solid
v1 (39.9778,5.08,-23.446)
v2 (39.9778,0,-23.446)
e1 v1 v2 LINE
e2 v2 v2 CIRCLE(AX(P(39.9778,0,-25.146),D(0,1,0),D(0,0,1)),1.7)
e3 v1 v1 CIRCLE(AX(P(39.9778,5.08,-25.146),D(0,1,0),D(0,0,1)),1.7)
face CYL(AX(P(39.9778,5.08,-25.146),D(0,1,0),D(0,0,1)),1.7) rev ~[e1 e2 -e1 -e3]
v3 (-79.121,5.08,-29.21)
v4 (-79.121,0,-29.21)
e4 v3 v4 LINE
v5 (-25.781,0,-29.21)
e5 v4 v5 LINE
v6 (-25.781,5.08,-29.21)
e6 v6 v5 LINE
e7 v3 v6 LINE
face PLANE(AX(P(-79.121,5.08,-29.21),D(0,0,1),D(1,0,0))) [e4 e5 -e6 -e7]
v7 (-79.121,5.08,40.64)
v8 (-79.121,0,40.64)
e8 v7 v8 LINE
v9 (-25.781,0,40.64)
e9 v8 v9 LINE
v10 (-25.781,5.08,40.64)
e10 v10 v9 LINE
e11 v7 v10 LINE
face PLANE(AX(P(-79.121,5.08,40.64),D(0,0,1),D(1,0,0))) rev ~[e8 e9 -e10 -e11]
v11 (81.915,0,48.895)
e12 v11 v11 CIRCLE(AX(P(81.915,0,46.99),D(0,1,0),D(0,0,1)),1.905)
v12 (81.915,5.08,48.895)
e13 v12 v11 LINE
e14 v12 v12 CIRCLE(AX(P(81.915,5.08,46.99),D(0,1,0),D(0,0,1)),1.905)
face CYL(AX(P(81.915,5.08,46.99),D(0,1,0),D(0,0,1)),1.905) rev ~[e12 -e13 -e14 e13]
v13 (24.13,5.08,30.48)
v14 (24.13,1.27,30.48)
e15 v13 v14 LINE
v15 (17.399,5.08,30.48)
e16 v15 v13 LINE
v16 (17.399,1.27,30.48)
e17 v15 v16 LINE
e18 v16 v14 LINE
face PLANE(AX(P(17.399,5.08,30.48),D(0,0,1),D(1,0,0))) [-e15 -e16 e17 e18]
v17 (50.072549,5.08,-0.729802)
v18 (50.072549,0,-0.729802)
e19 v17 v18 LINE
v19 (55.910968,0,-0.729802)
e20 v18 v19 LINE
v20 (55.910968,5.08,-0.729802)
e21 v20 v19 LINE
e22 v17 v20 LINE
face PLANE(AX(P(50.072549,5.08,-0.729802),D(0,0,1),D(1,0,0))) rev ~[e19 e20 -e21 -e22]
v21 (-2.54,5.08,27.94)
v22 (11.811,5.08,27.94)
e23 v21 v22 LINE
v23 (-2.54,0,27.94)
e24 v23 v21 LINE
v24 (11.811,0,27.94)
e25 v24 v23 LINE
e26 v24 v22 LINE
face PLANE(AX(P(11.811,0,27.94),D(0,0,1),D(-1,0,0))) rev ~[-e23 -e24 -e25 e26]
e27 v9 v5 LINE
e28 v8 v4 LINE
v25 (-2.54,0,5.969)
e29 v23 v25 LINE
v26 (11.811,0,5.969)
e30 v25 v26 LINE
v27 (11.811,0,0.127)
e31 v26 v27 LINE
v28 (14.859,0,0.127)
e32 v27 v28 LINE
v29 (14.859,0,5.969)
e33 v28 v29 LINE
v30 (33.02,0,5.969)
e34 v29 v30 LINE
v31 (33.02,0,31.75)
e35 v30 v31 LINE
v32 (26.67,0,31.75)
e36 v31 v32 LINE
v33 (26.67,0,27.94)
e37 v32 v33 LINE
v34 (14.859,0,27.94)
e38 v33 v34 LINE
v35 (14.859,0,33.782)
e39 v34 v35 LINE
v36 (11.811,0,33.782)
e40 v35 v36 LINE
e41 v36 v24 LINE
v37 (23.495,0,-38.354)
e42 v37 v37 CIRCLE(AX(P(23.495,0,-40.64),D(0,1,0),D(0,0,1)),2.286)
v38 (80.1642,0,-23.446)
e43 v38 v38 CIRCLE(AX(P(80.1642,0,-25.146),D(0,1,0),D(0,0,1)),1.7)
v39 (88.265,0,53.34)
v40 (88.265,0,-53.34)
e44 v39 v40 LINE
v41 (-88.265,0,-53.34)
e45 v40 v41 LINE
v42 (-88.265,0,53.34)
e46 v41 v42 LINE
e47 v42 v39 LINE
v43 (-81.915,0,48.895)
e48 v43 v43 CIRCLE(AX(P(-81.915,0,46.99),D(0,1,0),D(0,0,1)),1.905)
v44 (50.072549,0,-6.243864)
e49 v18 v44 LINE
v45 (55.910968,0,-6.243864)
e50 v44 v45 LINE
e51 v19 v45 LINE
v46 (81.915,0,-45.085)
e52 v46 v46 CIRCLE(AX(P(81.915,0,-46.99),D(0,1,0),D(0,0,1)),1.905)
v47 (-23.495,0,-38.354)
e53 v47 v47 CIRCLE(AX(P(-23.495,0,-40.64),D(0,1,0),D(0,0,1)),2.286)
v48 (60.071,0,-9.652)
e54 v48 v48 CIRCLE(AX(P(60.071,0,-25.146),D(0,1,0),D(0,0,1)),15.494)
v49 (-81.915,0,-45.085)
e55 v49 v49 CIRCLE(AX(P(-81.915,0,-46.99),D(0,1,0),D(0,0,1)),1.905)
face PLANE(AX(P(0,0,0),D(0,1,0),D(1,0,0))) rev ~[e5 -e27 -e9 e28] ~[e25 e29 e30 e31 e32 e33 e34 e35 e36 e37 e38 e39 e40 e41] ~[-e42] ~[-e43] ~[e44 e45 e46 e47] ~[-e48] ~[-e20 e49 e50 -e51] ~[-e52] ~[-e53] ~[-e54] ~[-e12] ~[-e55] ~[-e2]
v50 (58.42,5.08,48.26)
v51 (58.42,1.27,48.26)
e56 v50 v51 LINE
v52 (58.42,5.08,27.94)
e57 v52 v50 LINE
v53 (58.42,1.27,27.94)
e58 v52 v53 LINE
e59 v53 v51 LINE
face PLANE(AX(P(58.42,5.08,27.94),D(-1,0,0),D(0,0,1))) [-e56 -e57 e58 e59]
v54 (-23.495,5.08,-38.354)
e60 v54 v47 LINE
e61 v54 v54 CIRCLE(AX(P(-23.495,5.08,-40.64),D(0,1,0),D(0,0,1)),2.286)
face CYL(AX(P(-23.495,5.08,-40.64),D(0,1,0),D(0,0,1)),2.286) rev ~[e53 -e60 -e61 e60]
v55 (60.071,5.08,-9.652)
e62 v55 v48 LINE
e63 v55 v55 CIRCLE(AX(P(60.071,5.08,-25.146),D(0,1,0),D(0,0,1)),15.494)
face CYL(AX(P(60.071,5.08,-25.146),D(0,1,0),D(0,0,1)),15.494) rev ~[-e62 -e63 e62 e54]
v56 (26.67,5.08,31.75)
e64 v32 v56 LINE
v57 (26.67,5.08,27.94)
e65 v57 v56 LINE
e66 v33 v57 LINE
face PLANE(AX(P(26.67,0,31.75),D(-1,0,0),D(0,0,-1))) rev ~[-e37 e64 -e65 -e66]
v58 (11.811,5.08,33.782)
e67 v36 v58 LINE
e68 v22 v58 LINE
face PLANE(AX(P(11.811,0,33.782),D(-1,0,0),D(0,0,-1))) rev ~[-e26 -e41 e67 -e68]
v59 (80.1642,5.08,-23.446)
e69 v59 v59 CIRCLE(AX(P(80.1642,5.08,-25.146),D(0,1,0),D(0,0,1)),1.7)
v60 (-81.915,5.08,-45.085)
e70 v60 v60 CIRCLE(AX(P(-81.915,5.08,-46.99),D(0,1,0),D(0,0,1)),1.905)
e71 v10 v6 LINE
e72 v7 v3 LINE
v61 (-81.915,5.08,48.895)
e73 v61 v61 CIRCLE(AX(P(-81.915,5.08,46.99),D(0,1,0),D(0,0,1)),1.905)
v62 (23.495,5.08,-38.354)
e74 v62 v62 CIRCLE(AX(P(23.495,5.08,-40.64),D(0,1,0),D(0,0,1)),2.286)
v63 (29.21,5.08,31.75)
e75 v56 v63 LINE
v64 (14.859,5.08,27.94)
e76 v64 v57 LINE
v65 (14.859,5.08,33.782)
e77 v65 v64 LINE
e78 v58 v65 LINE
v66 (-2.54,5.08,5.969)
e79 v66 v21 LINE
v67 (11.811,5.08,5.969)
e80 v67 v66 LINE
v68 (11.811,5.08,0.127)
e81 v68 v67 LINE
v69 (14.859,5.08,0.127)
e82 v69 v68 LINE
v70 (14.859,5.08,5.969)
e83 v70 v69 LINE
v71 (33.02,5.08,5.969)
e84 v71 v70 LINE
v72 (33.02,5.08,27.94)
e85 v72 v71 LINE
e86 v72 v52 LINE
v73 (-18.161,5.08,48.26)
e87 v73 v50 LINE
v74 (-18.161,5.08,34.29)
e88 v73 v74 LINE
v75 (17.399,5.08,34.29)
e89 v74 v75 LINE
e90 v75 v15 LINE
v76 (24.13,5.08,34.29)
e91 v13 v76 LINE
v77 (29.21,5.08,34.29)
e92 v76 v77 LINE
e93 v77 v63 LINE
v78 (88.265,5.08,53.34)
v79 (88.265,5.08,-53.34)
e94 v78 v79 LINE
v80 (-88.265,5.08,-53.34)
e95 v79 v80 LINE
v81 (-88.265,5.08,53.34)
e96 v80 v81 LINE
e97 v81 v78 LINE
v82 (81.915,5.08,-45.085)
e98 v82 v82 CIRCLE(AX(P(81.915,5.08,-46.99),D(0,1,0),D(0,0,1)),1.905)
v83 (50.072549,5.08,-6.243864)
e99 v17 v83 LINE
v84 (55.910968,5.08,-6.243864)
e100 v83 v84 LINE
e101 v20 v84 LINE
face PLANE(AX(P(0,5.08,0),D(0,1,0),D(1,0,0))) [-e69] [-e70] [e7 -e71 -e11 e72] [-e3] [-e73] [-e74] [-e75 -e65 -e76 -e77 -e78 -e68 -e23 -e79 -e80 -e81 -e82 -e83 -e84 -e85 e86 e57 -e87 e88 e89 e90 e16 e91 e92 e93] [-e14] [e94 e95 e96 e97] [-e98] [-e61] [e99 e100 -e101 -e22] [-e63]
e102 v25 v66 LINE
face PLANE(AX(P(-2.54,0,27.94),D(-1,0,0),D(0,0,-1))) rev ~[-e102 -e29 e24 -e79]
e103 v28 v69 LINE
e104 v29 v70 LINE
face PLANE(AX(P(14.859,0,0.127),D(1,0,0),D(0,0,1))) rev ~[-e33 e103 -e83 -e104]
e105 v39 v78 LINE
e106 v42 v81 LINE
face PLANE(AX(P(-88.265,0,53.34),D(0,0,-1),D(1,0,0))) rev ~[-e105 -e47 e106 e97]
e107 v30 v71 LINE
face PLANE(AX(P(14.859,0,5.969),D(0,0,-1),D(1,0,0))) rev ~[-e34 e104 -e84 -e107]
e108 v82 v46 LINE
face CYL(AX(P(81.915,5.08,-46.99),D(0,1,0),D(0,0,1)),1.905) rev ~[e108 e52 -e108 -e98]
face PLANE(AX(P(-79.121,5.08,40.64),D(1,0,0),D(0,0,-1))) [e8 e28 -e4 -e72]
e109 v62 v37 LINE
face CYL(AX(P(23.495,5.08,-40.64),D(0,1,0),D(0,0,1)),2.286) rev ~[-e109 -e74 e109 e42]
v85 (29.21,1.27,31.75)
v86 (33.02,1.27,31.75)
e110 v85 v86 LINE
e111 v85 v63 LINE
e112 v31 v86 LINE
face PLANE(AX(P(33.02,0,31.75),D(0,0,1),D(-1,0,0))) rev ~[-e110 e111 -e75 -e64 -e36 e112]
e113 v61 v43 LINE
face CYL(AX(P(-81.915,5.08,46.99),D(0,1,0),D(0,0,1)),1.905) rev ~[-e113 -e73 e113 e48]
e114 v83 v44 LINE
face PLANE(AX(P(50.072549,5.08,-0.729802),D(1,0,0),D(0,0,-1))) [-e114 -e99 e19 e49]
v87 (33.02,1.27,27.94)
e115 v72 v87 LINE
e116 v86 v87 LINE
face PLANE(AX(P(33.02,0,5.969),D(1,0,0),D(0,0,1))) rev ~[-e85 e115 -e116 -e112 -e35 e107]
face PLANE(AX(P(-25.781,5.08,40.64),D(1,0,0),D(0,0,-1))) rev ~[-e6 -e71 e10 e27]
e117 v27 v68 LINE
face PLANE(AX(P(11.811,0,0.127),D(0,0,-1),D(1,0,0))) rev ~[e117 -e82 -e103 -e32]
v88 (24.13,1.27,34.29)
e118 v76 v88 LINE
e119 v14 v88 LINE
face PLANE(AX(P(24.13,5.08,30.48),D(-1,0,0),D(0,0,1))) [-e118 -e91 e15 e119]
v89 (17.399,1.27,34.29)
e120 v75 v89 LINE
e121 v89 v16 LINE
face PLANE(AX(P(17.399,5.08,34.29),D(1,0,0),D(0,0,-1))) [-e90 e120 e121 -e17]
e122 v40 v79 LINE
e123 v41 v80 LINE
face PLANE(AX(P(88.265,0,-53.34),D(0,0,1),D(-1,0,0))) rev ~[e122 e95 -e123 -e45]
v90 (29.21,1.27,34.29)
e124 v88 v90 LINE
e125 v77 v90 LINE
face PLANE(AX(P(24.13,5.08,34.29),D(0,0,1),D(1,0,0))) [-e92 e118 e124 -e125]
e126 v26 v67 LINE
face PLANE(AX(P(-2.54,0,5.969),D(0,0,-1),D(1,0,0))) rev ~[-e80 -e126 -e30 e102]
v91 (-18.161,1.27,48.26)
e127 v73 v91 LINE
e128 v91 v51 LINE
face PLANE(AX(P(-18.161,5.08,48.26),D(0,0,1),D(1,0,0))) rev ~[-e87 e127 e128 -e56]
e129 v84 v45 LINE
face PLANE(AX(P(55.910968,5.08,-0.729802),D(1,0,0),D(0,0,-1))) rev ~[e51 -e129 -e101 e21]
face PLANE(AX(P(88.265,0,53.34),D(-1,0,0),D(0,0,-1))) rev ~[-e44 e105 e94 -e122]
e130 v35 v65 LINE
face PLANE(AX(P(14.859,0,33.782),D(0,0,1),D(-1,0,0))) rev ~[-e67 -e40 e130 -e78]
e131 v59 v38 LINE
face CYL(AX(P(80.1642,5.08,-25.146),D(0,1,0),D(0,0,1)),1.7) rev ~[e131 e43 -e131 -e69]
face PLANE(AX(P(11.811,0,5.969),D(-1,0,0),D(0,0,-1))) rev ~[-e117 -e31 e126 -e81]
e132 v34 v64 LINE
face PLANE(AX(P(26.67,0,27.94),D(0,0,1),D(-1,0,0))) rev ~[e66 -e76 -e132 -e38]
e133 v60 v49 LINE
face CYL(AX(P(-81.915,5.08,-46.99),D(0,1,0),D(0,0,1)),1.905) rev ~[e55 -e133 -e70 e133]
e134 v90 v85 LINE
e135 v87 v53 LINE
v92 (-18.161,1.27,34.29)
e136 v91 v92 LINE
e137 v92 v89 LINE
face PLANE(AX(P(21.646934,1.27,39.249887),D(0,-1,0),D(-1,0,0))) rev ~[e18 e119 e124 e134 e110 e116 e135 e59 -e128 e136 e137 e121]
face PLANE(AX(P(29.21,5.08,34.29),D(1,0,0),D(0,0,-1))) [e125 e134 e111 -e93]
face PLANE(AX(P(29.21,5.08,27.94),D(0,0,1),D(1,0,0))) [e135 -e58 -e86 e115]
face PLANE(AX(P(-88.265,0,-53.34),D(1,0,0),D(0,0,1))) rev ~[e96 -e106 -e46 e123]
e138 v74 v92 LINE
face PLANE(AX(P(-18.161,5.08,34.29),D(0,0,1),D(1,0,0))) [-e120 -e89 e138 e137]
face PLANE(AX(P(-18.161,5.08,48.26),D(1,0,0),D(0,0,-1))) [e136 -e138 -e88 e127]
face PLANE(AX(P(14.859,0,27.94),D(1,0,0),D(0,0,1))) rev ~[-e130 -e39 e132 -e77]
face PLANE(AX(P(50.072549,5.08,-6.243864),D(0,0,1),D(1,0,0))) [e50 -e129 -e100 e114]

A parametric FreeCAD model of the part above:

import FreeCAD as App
import Part
import Sketcher

V = App.Vector
Q = App.Units.Quantity


def add_polygon(sketch, points):
    """Adds a closed chain of lines whose ends are joined by coincident constraints."""
    first, n = sketch.GeometryCount, len(points)
    for a, b in zip(points, points[1:] + points[:1]):
        sketch.addGeometry(Part.LineSegment(App.Vector(*a, 0), App.Vector(*b, 0)), False)
    for i in range(n):
        sketch.addConstraint(Sketcher.Constraint("Coincident", first + i, 2, first + (i + 1) % n, 1))

doc = App.newDocument("Part")
params = doc.addObject("Spreadsheet::Sheet", "Params")
for row, (alias, value) in enumerate([
    ("sketch1_height", "4.2 in"),
    ("sketch1_width", "6.95 in"),
    ("pad1_length", "0.2 in"),
    ("sketch2_diameter", "0.15 in"),
    ("sketch3_diameter", "0.15 in"),
    ("sketch3_diameter2", "0.18 in"),
    ("sketch4_width", "0.12 in"),
    ("sketch4_width2", "0.25 in"),
    ("sketch4_height", "0.23 in"),
    ("sketch4_height2", "0.15 in"),
    ("sketch4_width3", "0.565 in"),
    ("sketch5_diameter", "1.22 in"),
    ("sketch6_width", "2.1 in"),
    ("sketch6_height", "2.75 in"),
    ("sketch8_width", "0.2 in"),
    ("sketch8_width2", "1.4 in"),
    ("sketch8_height", "0.8 in"),
    ("sketch8_width3", "1.15 in"),
    ("sketch8_height2", "0.25 in"),
    ("pocket7_length", "0.15 in"),
], start=1):
    params.set(f"A{row}", alias)
    params.set(f"B{row}", "=" + value)
    params.setAlias(f"B{row}", alias)

body = doc.addObject("PartDesign::Body", "Body")

sketch1 = body.newObject("Sketcher::SketchObject", "Sketch")
sketch1.AttachmentSupport = (doc.getObject("XZ_Plane"), [""])
sketch1.MapMode = "FlatFace"
add_polygon(sketch1, [(88.265, 53.34), (88.265, -53.34), (-88.265, -53.34), (-88.265, 53.34)])
sketch1.addConstraint(Sketcher.Constraint("Vertical", 0))
sketch1.addConstraint(Sketcher.Constraint("Horizontal", 1))
sketch1.addConstraint(Sketcher.Constraint("Vertical", 2))
sketch1.addConstraint(Sketcher.Constraint("Horizontal", 3))
sketch1.addConstraint(Sketcher.Constraint("Symmetric", 0, 2, 2, 2, -1, 1))
sketch1.addConstraint(Sketcher.Constraint("DistanceY", 0, 2, 0, 1, Q("4.2 in")))
sketch1.addConstraint(Sketcher.Constraint("DistanceX", 1, 2, 1, 1, Q("6.95 in")))
sketch1.setExpression("Constraints[9]", "Params.sketch1_height")
sketch1.setExpression("Constraints[10]", "Params.sketch1_width")
pad1 = body.newObject("PartDesign::Pad", "Pad")
pad1.Profile = sketch1
pad1.setExpression("Length", "Params.pad1_length")
pad1.Reversed = True

sketch2 = body.newObject("Sketcher::SketchObject", "Sketch001")
sketch2.AttachmentSupport = (doc.getObject("XZ_Plane"), [""])
sketch2.MapMode = "FlatFace"
sketch2.AttachmentOffset = App.Placement(V(0, 0, -0.2 * 25.4), App.Rotation())
sketch2.addGeometry(Part.Circle(V(-81.915, -46.99, 0), V(0, 0, 1), 1.905), False)
sketch2.addConstraint(Sketcher.Constraint("Diameter", 0, Q("0.15 in")))
sketch2.addConstraint(Sketcher.Constraint("DistanceY", 0, 3, -1, 1, Q("1.85 in")))
sketch2.addConstraint(Sketcher.Constraint("DistanceX", 0, 3, -1, 1, Q("3.225 in")))
sketch2.setExpression("Constraints[0]", "Params.sketch2_diameter")
pocket1 = body.newObject("PartDesign::Pocket", "Pocket")
pocket1.Profile = sketch2
pocket1.Type = "ThroughAll"
pocket1.Reversed = True

sketch3 = body.newObject("Sketcher::SketchObject", "Sketch002")
sketch3.AttachmentSupport = (doc.getObject("XZ_Plane"), [""])
sketch3.MapMode = "FlatFace"
sketch3.AttachmentOffset = App.Placement(V(0, 0, -0.2 * 25.4), App.Rotation())
sketch3.addGeometry(Part.Circle(V(81.915, -46.99, 0), V(0, 0, 1), 1.905), False)
sketch3.addGeometry(Part.Circle(V(-81.915, 46.99, 0), V(0, 0, 1), 1.905), False)
sketch3.addGeometry(Part.Circle(V(81.915, 46.99, 0), V(0, 0, 1), 1.905), False)
sketch3.addGeometry(Part.Circle(V(23.495, -40.64, 0), V(0, 0, 1), 2.286), False)
sketch3.addGeometry(Part.Circle(V(-23.495, -40.64, 0), V(0, 0, 1), 2.286), False)
sketch3.addConstraint(Sketcher.Constraint("Equal", 0, 1))
sketch3.addConstraint(Sketcher.Constraint("Equal", 1, 2))
sketch3.addConstraint(Sketcher.Constraint("Equal", 3, 4))
sketch3.addConstraint(Sketcher.Constraint("Symmetric", 0, 3, 1, 3, -1, 1))
sketch3.addConstraint(Sketcher.Constraint("Symmetric", 1, 3, 2, 3, -2))
sketch3.addConstraint(Sketcher.Constraint("Symmetric", 3, 3, 4, 3, -2))
sketch3.addConstraint(Sketcher.Constraint("Diameter", 0, Q("0.15 in")))
sketch3.addConstraint(Sketcher.Constraint("Diameter", 3, Q("0.18 in")))
sketch3.addConstraint(Sketcher.Constraint("DistanceY", 3, 3, -1, 1, Q("1.6 in")))
sketch3.addConstraint(Sketcher.Constraint("DistanceY", 0, 3, 1, 3, Q("3.7 in")))
sketch3.addConstraint(Sketcher.Constraint("DistanceX", 3, 3, 0, 3, Q("2.3 in")))
sketch3.addConstraint(Sketcher.Constraint("DistanceX", 1, 3, 0, 3, Q("6.45 in")))
sketch3.setExpression("Constraints[6]", "Params.sketch3_diameter")
sketch3.setExpression("Constraints[7]", "Params.sketch3_diameter2")
pocket2 = body.newObject("PartDesign::Pocket", "Pocket001")
pocket2.Profile = sketch3
pocket2.Type = "ThroughAll"
pocket2.Reversed = True

sketch4 = body.newObject("Sketcher::SketchObject", "Sketch003")
sketch4.AttachmentSupport = (doc.getObject("XZ_Plane"), [""])
sketch4.MapMode = "FlatFace"
add_polygon(sketch4, [(-2.54, 27.94), (-2.54, 5.969), (11.811, 5.969), (11.811, 0.127), (14.859, 0.127), (14.859, 5.969), (33.02, 5.969), (33.02, 31.75), (26.67, 31.75), (26.67, 27.94), (14.859, 27.94), (14.859, 33.782), (11.811, 33.782), (11.811, 27.94)])
sketch4.addConstraint(Sketcher.Constraint("Vertical", 0))
sketch4.addConstraint(Sketcher.Constraint("Horizontal", 1))
sketch4.addConstraint(Sketcher.Constraint("Vertical", 2))
sketch4.addConstraint(Sketcher.Constraint("Horizontal", 3))
sketch4.addConstraint(Sketcher.Constraint("Vertical", 4))
sketch4.addConstraint(Sketcher.Constraint("Horizontal", 5))
sketch4.addConstraint(Sketcher.Constraint("Vertical", 6))
sketch4.addConstraint(Sketcher.Constraint("Horizontal", 7))
sketch4.addConstraint(Sketcher.Constraint("Vertical", 8))
sketch4.addConstraint(Sketcher.Constraint("Horizontal", 9))
sketch4.addConstraint(Sketcher.Constraint("Vertical", 10))
sketch4.addConstraint(Sketcher.Constraint("Horizontal", 11))
sketch4.addConstraint(Sketcher.Constraint("Vertical", 12))
sketch4.addConstraint(Sketcher.Constraint("Horizontal", 13))
sketch4.addConstraint(Sketcher.Constraint("Horizontal", 1, 2, 4, 2))
sketch4.addConstraint(Sketcher.Constraint("Horizontal", 9, 2, 12, 2))
sketch4.addConstraint(Sketcher.Constraint("Vertical", 4, 2, 9, 2))
sketch4.addConstraint(Sketcher.Constraint("Vertical", 2, 2, 11, 2))
sketch4.addConstraint(Sketcher.Constraint("Equal", 4, 10))
sketch4.addConstraint(Sketcher.Constraint("DistanceX", 3, 1, 3, 2, Q("0.12 in")))
sketch4.addConstraint(Sketcher.Constraint("DistanceX", 7, 2, 7, 1, Q("0.25 in")))
sketch4.addConstraint(Sketcher.Constraint("DistanceY", 2, 2, 2, 1, Q("0.23 in")))
sketch4.addConstraint(Sketcher.Constraint("DistanceY", 8, 2, 8, 1, Q("0.15 in")))
sketch4.addConstraint(Sketcher.Constraint("DistanceX", 0, 2, -1, 1, Q("0.1 in")))
sketch4.addConstraint(Sketcher.Constraint("DistanceX", -1, 1, 5, 2, Q("1.3 in")))
sketch4.addConstraint(Sketcher.Constraint("DistanceY", -1, 1, 8, 2, Q("1.1 in")))
sketch4.addConstraint(Sketcher.Constraint("DistanceX", 1, 1, 1, 2, Q("0.565 in")))
sketch4.addConstraint(Sketcher.Constraint("DistanceY", 0, 2, 0, 1, Q("0.865 in")))
sketch4.setExpression("Constraints[33]", "Params.sketch4_width")
sketch4.setExpression("Constraints[34]", "Params.sketch4_width2")
sketch4.setExpression("Constraints[35]", "Params.sketch4_height")
sketch4.setExpression("Constraints[36]", "Params.sketch4_height2")
sketch4.setExpression("Constraints[40]", "Params.sketch4_width3")
pocket3 = body.newObject("PartDesign::Pocket", "Pocket002")
pocket3.Profile = sketch4
pocket3.Type = "ThroughAll"

sketch5 = body.newObject("Sketcher::SketchObject", "Sketch004")
sketch5.AttachmentSupport = (doc.getObject("XZ_Plane"), [""])
sketch5.MapMode = "FlatFace"
sketch5.AttachmentOffset = App.Placement(V(0, 0, -0.2 * 25.4), App.Rotation())
sketch5.addGeometry(Part.Circle(V(60.071, -25.146, 0), V(0, 0, 1), 15.494), False)
sketch5.addGeometry(Part.Circle(V(39.9778, -25.146, 0), V(0, 0, 1), 1.7), False)
sketch5.addGeometry(Part.Circle(V(80.1642, -25.146, 0), V(0, 0, 1), 1.7), False)
sketch5.addConstraint(Sketcher.Constraint("Equal", 1, 2))
sketch5.addConstraint(Sketcher.Constraint("Horizontal", 0, 3, 1, 3))
sketch5.addConstraint(Sketcher.Constraint("Horizontal", 1, 3, 2, 3))
sketch5.addConstraint(Sketcher.Constraint("Diameter", 0, Q("1.22 in")))
sketch5.addConstraint(Sketcher.Constraint("Diameter", 1, 3.4))
sketch5.addConstraint(Sketcher.Constraint("DistanceY", 0, 3, -1, 1, Q("0.99 in")))
sketch5.addConstraint(Sketcher.Constraint("DistanceX", -1, 1, 0, 3, Q("2.365 in")))
sketch5.addConstraint(Sketcher.Constraint("DistanceX", -1, 1, 1, 3, 39.9778))
sketch5.addConstraint(Sketcher.Constraint("DistanceX", -1, 1, 2, 3, 80.1642))
sketch5.setExpression("Constraints[3]", "Params.sketch5_diameter")
pocket4 = body.newObject("PartDesign::Pocket", "Pocket003")
pocket4.Profile = sketch5
pocket4.Type = "ThroughAll"
pocket4.Reversed = True

sketch6 = body.newObject("Sketcher::SketchObject", "Sketch005")
sketch6.AttachmentSupport = (doc.getObject("XZ_Plane"), [""])
sketch6.MapMode = "FlatFace"
sketch6.AttachmentOffset = App.Placement(V(0, 0, -0.2 * 25.4), App.Rotation())
add_polygon(sketch6, [(-79.121, -29.21), (-79.121, 40.64), (-25.781, 40.64), (-25.781, -29.21)])
sketch6.addConstraint(Sketcher.Constraint("Vertical", 0))
sketch6.addConstraint(Sketcher.Constraint("Horizontal", 1))
sketch6.addConstraint(Sketcher.Constraint("Vertical", 2))
sketch6.addConstraint(Sketcher.Constraint("Horizontal", 3))
sketch6.addConstraint(Sketcher.Constraint("DistanceX", 1, 1, 1, 2, Q("2.1 in")))
sketch6.addConstraint(Sketcher.Constraint("DistanceY", 0, 1, 0, 2, Q("2.75 in")))
sketch6.addConstraint(Sketcher.Constraint("DistanceY", -1, 1, 0, 2, Q("1.6 in")))
sketch6.addConstraint(Sketcher.Constraint("DistanceX", 0, 2, -1, 1, Q("3.115 in")))
sketch6.setExpression("Constraints[8]", "Params.sketch6_width")
sketch6.setExpression("Constraints[9]", "Params.sketch6_height")
pocket5 = body.newObject("PartDesign::Pocket", "Pocket004")
pocket5.Profile = sketch6
pocket5.Type = "ThroughAll"
pocket5.Reversed = True

sketch7 = body.newObject("Sketcher::SketchObject", "Sketch006")
sketch7.AttachmentSupport = (doc.getObject("XZ_Plane"), [""])
sketch7.MapMode = "FlatFace"
sketch7.AttachmentOffset = App.Placement(V(0, 0, -0.2 * 25.4), App.Rotation())
add_polygon(sketch7, [(50.072549, -6.243864), (50.072549, -0.729802), (55.910968, -0.729802), (55.910968, -6.243864)])
sketch7.addConstraint(Sketcher.Constraint("Vertical", 0))
sketch7.addConstraint(Sketcher.Constraint("Horizontal", 1))
sketch7.addConstraint(Sketcher.Constraint("Vertical", 2))
sketch7.addConstraint(Sketcher.Constraint("Horizontal", 3))
sketch7.addConstraint(Sketcher.Constraint("DistanceX", 1, 1, 1, 2, 5.838419))
sketch7.addConstraint(Sketcher.Constraint("DistanceY", 0, 1, 0, 2, 5.514062))
sketch7.addConstraint(Sketcher.Constraint("DistanceX", -1, 1, 0, 2, 50.072549))
sketch7.addConstraint(Sketcher.Constraint("DistanceY", 0, 2, -1, 1, 0.729802))
pocket6 = body.newObject("PartDesign::Pocket", "Pocket005")
pocket6.Profile = sketch7
pocket6.Type = "ThroughAll"
pocket6.Reversed = True

sketch8 = body.newObject("Sketcher::SketchObject", "Sketch007")
sketch8.AttachmentSupport = (doc.getObject("XZ_Plane"), [""])
sketch8.MapMode = "FlatFace"
sketch8.AttachmentOffset = App.Placement(V(0, 0, -0.2 * 25.4), App.Rotation())
add_polygon(sketch8, [(58.42, 27.94), (29.21, 27.94), (29.21, 34.29), (24.13, 34.29), (24.13, 30.48), (17.399, 30.48), (17.399, 34.29), (-18.161, 34.29), (-18.161, 48.26), (58.42, 48.26)])
sketch8.addConstraint(Sketcher.Constraint("Horizontal", 0))
sketch8.addConstraint(Sketcher.Constraint("Vertical", 1))
sketch8.addConstraint(Sketcher.Constraint("Horizontal", 2))
sketch8.addConstraint(Sketcher.Constraint("Vertical", 3))
sketch8.addConstraint(Sketcher.Constraint("Horizontal", 4))
sketch8.addConstraint(Sketcher.Constraint("Vertical", 5))
sketch8.addConstraint(Sketcher.Constraint("Horizontal", 6))
sketch8.addConstraint(Sketcher.Constraint("Vertical", 7))
sketch8.addConstraint(Sketcher.Constraint("Horizontal", 8))
sketch8.addConstraint(Sketcher.Constraint("Vertical", 9))
sketch8.addConstraint(Sketcher.Constraint("Horizontal", 2, 2, 5, 2))
sketch8.addConstraint(Sketcher.Constraint("DistanceX", 2, 2, 2, 1, Q("0.2 in")))
sketch8.addConstraint(Sketcher.Constraint("DistanceX", 6, 2, 6, 1, Q("1.4 in")))
sketch8.addConstraint(Sketcher.Constraint("DistanceY", 9, 2, 9, 1, Q("0.8 in")))
sketch8.addConstraint(Sketcher.Constraint("DistanceX", 0, 2, 0, 1, Q("1.15 in")))
sketch8.addConstraint(Sketcher.Constraint("DistanceY", 1, 1, 1, 2, Q("0.25 in")))
sketch8.addConstraint(Sketcher.Constraint("DistanceY", 3, 2, 3, 1, Q("0.15 in")))
sketch8.addConstraint(Sketcher.Constraint("DistanceY", -1, 1, 0, 2, Q("1.1 in")))
sketch8.addConstraint(Sketcher.Constraint("DistanceX", -1, 1, 8, 2, Q("2.3 in")))
sketch8.addConstraint(Sketcher.Constraint("DistanceX", 4, 2, 4, 1, Q("0.265 in")))
sketch8.setExpression("Constraints[21]", "Params.sketch8_width")
sketch8.setExpression("Constraints[22]", "Params.sketch8_width2")
sketch8.setExpression("Constraints[23]", "Params.sketch8_height")
sketch8.setExpression("Constraints[24]", "Params.sketch8_width3")
sketch8.setExpression("Constraints[25]", "Params.sketch8_height2")
pocket7 = body.newObject("PartDesign::Pocket", "Pocket006")
pocket7.Profile = sketch8
pocket7.setExpression("Length", "Params.pocket7_length")
pocket7.Reversed = True

doc.recompute()
